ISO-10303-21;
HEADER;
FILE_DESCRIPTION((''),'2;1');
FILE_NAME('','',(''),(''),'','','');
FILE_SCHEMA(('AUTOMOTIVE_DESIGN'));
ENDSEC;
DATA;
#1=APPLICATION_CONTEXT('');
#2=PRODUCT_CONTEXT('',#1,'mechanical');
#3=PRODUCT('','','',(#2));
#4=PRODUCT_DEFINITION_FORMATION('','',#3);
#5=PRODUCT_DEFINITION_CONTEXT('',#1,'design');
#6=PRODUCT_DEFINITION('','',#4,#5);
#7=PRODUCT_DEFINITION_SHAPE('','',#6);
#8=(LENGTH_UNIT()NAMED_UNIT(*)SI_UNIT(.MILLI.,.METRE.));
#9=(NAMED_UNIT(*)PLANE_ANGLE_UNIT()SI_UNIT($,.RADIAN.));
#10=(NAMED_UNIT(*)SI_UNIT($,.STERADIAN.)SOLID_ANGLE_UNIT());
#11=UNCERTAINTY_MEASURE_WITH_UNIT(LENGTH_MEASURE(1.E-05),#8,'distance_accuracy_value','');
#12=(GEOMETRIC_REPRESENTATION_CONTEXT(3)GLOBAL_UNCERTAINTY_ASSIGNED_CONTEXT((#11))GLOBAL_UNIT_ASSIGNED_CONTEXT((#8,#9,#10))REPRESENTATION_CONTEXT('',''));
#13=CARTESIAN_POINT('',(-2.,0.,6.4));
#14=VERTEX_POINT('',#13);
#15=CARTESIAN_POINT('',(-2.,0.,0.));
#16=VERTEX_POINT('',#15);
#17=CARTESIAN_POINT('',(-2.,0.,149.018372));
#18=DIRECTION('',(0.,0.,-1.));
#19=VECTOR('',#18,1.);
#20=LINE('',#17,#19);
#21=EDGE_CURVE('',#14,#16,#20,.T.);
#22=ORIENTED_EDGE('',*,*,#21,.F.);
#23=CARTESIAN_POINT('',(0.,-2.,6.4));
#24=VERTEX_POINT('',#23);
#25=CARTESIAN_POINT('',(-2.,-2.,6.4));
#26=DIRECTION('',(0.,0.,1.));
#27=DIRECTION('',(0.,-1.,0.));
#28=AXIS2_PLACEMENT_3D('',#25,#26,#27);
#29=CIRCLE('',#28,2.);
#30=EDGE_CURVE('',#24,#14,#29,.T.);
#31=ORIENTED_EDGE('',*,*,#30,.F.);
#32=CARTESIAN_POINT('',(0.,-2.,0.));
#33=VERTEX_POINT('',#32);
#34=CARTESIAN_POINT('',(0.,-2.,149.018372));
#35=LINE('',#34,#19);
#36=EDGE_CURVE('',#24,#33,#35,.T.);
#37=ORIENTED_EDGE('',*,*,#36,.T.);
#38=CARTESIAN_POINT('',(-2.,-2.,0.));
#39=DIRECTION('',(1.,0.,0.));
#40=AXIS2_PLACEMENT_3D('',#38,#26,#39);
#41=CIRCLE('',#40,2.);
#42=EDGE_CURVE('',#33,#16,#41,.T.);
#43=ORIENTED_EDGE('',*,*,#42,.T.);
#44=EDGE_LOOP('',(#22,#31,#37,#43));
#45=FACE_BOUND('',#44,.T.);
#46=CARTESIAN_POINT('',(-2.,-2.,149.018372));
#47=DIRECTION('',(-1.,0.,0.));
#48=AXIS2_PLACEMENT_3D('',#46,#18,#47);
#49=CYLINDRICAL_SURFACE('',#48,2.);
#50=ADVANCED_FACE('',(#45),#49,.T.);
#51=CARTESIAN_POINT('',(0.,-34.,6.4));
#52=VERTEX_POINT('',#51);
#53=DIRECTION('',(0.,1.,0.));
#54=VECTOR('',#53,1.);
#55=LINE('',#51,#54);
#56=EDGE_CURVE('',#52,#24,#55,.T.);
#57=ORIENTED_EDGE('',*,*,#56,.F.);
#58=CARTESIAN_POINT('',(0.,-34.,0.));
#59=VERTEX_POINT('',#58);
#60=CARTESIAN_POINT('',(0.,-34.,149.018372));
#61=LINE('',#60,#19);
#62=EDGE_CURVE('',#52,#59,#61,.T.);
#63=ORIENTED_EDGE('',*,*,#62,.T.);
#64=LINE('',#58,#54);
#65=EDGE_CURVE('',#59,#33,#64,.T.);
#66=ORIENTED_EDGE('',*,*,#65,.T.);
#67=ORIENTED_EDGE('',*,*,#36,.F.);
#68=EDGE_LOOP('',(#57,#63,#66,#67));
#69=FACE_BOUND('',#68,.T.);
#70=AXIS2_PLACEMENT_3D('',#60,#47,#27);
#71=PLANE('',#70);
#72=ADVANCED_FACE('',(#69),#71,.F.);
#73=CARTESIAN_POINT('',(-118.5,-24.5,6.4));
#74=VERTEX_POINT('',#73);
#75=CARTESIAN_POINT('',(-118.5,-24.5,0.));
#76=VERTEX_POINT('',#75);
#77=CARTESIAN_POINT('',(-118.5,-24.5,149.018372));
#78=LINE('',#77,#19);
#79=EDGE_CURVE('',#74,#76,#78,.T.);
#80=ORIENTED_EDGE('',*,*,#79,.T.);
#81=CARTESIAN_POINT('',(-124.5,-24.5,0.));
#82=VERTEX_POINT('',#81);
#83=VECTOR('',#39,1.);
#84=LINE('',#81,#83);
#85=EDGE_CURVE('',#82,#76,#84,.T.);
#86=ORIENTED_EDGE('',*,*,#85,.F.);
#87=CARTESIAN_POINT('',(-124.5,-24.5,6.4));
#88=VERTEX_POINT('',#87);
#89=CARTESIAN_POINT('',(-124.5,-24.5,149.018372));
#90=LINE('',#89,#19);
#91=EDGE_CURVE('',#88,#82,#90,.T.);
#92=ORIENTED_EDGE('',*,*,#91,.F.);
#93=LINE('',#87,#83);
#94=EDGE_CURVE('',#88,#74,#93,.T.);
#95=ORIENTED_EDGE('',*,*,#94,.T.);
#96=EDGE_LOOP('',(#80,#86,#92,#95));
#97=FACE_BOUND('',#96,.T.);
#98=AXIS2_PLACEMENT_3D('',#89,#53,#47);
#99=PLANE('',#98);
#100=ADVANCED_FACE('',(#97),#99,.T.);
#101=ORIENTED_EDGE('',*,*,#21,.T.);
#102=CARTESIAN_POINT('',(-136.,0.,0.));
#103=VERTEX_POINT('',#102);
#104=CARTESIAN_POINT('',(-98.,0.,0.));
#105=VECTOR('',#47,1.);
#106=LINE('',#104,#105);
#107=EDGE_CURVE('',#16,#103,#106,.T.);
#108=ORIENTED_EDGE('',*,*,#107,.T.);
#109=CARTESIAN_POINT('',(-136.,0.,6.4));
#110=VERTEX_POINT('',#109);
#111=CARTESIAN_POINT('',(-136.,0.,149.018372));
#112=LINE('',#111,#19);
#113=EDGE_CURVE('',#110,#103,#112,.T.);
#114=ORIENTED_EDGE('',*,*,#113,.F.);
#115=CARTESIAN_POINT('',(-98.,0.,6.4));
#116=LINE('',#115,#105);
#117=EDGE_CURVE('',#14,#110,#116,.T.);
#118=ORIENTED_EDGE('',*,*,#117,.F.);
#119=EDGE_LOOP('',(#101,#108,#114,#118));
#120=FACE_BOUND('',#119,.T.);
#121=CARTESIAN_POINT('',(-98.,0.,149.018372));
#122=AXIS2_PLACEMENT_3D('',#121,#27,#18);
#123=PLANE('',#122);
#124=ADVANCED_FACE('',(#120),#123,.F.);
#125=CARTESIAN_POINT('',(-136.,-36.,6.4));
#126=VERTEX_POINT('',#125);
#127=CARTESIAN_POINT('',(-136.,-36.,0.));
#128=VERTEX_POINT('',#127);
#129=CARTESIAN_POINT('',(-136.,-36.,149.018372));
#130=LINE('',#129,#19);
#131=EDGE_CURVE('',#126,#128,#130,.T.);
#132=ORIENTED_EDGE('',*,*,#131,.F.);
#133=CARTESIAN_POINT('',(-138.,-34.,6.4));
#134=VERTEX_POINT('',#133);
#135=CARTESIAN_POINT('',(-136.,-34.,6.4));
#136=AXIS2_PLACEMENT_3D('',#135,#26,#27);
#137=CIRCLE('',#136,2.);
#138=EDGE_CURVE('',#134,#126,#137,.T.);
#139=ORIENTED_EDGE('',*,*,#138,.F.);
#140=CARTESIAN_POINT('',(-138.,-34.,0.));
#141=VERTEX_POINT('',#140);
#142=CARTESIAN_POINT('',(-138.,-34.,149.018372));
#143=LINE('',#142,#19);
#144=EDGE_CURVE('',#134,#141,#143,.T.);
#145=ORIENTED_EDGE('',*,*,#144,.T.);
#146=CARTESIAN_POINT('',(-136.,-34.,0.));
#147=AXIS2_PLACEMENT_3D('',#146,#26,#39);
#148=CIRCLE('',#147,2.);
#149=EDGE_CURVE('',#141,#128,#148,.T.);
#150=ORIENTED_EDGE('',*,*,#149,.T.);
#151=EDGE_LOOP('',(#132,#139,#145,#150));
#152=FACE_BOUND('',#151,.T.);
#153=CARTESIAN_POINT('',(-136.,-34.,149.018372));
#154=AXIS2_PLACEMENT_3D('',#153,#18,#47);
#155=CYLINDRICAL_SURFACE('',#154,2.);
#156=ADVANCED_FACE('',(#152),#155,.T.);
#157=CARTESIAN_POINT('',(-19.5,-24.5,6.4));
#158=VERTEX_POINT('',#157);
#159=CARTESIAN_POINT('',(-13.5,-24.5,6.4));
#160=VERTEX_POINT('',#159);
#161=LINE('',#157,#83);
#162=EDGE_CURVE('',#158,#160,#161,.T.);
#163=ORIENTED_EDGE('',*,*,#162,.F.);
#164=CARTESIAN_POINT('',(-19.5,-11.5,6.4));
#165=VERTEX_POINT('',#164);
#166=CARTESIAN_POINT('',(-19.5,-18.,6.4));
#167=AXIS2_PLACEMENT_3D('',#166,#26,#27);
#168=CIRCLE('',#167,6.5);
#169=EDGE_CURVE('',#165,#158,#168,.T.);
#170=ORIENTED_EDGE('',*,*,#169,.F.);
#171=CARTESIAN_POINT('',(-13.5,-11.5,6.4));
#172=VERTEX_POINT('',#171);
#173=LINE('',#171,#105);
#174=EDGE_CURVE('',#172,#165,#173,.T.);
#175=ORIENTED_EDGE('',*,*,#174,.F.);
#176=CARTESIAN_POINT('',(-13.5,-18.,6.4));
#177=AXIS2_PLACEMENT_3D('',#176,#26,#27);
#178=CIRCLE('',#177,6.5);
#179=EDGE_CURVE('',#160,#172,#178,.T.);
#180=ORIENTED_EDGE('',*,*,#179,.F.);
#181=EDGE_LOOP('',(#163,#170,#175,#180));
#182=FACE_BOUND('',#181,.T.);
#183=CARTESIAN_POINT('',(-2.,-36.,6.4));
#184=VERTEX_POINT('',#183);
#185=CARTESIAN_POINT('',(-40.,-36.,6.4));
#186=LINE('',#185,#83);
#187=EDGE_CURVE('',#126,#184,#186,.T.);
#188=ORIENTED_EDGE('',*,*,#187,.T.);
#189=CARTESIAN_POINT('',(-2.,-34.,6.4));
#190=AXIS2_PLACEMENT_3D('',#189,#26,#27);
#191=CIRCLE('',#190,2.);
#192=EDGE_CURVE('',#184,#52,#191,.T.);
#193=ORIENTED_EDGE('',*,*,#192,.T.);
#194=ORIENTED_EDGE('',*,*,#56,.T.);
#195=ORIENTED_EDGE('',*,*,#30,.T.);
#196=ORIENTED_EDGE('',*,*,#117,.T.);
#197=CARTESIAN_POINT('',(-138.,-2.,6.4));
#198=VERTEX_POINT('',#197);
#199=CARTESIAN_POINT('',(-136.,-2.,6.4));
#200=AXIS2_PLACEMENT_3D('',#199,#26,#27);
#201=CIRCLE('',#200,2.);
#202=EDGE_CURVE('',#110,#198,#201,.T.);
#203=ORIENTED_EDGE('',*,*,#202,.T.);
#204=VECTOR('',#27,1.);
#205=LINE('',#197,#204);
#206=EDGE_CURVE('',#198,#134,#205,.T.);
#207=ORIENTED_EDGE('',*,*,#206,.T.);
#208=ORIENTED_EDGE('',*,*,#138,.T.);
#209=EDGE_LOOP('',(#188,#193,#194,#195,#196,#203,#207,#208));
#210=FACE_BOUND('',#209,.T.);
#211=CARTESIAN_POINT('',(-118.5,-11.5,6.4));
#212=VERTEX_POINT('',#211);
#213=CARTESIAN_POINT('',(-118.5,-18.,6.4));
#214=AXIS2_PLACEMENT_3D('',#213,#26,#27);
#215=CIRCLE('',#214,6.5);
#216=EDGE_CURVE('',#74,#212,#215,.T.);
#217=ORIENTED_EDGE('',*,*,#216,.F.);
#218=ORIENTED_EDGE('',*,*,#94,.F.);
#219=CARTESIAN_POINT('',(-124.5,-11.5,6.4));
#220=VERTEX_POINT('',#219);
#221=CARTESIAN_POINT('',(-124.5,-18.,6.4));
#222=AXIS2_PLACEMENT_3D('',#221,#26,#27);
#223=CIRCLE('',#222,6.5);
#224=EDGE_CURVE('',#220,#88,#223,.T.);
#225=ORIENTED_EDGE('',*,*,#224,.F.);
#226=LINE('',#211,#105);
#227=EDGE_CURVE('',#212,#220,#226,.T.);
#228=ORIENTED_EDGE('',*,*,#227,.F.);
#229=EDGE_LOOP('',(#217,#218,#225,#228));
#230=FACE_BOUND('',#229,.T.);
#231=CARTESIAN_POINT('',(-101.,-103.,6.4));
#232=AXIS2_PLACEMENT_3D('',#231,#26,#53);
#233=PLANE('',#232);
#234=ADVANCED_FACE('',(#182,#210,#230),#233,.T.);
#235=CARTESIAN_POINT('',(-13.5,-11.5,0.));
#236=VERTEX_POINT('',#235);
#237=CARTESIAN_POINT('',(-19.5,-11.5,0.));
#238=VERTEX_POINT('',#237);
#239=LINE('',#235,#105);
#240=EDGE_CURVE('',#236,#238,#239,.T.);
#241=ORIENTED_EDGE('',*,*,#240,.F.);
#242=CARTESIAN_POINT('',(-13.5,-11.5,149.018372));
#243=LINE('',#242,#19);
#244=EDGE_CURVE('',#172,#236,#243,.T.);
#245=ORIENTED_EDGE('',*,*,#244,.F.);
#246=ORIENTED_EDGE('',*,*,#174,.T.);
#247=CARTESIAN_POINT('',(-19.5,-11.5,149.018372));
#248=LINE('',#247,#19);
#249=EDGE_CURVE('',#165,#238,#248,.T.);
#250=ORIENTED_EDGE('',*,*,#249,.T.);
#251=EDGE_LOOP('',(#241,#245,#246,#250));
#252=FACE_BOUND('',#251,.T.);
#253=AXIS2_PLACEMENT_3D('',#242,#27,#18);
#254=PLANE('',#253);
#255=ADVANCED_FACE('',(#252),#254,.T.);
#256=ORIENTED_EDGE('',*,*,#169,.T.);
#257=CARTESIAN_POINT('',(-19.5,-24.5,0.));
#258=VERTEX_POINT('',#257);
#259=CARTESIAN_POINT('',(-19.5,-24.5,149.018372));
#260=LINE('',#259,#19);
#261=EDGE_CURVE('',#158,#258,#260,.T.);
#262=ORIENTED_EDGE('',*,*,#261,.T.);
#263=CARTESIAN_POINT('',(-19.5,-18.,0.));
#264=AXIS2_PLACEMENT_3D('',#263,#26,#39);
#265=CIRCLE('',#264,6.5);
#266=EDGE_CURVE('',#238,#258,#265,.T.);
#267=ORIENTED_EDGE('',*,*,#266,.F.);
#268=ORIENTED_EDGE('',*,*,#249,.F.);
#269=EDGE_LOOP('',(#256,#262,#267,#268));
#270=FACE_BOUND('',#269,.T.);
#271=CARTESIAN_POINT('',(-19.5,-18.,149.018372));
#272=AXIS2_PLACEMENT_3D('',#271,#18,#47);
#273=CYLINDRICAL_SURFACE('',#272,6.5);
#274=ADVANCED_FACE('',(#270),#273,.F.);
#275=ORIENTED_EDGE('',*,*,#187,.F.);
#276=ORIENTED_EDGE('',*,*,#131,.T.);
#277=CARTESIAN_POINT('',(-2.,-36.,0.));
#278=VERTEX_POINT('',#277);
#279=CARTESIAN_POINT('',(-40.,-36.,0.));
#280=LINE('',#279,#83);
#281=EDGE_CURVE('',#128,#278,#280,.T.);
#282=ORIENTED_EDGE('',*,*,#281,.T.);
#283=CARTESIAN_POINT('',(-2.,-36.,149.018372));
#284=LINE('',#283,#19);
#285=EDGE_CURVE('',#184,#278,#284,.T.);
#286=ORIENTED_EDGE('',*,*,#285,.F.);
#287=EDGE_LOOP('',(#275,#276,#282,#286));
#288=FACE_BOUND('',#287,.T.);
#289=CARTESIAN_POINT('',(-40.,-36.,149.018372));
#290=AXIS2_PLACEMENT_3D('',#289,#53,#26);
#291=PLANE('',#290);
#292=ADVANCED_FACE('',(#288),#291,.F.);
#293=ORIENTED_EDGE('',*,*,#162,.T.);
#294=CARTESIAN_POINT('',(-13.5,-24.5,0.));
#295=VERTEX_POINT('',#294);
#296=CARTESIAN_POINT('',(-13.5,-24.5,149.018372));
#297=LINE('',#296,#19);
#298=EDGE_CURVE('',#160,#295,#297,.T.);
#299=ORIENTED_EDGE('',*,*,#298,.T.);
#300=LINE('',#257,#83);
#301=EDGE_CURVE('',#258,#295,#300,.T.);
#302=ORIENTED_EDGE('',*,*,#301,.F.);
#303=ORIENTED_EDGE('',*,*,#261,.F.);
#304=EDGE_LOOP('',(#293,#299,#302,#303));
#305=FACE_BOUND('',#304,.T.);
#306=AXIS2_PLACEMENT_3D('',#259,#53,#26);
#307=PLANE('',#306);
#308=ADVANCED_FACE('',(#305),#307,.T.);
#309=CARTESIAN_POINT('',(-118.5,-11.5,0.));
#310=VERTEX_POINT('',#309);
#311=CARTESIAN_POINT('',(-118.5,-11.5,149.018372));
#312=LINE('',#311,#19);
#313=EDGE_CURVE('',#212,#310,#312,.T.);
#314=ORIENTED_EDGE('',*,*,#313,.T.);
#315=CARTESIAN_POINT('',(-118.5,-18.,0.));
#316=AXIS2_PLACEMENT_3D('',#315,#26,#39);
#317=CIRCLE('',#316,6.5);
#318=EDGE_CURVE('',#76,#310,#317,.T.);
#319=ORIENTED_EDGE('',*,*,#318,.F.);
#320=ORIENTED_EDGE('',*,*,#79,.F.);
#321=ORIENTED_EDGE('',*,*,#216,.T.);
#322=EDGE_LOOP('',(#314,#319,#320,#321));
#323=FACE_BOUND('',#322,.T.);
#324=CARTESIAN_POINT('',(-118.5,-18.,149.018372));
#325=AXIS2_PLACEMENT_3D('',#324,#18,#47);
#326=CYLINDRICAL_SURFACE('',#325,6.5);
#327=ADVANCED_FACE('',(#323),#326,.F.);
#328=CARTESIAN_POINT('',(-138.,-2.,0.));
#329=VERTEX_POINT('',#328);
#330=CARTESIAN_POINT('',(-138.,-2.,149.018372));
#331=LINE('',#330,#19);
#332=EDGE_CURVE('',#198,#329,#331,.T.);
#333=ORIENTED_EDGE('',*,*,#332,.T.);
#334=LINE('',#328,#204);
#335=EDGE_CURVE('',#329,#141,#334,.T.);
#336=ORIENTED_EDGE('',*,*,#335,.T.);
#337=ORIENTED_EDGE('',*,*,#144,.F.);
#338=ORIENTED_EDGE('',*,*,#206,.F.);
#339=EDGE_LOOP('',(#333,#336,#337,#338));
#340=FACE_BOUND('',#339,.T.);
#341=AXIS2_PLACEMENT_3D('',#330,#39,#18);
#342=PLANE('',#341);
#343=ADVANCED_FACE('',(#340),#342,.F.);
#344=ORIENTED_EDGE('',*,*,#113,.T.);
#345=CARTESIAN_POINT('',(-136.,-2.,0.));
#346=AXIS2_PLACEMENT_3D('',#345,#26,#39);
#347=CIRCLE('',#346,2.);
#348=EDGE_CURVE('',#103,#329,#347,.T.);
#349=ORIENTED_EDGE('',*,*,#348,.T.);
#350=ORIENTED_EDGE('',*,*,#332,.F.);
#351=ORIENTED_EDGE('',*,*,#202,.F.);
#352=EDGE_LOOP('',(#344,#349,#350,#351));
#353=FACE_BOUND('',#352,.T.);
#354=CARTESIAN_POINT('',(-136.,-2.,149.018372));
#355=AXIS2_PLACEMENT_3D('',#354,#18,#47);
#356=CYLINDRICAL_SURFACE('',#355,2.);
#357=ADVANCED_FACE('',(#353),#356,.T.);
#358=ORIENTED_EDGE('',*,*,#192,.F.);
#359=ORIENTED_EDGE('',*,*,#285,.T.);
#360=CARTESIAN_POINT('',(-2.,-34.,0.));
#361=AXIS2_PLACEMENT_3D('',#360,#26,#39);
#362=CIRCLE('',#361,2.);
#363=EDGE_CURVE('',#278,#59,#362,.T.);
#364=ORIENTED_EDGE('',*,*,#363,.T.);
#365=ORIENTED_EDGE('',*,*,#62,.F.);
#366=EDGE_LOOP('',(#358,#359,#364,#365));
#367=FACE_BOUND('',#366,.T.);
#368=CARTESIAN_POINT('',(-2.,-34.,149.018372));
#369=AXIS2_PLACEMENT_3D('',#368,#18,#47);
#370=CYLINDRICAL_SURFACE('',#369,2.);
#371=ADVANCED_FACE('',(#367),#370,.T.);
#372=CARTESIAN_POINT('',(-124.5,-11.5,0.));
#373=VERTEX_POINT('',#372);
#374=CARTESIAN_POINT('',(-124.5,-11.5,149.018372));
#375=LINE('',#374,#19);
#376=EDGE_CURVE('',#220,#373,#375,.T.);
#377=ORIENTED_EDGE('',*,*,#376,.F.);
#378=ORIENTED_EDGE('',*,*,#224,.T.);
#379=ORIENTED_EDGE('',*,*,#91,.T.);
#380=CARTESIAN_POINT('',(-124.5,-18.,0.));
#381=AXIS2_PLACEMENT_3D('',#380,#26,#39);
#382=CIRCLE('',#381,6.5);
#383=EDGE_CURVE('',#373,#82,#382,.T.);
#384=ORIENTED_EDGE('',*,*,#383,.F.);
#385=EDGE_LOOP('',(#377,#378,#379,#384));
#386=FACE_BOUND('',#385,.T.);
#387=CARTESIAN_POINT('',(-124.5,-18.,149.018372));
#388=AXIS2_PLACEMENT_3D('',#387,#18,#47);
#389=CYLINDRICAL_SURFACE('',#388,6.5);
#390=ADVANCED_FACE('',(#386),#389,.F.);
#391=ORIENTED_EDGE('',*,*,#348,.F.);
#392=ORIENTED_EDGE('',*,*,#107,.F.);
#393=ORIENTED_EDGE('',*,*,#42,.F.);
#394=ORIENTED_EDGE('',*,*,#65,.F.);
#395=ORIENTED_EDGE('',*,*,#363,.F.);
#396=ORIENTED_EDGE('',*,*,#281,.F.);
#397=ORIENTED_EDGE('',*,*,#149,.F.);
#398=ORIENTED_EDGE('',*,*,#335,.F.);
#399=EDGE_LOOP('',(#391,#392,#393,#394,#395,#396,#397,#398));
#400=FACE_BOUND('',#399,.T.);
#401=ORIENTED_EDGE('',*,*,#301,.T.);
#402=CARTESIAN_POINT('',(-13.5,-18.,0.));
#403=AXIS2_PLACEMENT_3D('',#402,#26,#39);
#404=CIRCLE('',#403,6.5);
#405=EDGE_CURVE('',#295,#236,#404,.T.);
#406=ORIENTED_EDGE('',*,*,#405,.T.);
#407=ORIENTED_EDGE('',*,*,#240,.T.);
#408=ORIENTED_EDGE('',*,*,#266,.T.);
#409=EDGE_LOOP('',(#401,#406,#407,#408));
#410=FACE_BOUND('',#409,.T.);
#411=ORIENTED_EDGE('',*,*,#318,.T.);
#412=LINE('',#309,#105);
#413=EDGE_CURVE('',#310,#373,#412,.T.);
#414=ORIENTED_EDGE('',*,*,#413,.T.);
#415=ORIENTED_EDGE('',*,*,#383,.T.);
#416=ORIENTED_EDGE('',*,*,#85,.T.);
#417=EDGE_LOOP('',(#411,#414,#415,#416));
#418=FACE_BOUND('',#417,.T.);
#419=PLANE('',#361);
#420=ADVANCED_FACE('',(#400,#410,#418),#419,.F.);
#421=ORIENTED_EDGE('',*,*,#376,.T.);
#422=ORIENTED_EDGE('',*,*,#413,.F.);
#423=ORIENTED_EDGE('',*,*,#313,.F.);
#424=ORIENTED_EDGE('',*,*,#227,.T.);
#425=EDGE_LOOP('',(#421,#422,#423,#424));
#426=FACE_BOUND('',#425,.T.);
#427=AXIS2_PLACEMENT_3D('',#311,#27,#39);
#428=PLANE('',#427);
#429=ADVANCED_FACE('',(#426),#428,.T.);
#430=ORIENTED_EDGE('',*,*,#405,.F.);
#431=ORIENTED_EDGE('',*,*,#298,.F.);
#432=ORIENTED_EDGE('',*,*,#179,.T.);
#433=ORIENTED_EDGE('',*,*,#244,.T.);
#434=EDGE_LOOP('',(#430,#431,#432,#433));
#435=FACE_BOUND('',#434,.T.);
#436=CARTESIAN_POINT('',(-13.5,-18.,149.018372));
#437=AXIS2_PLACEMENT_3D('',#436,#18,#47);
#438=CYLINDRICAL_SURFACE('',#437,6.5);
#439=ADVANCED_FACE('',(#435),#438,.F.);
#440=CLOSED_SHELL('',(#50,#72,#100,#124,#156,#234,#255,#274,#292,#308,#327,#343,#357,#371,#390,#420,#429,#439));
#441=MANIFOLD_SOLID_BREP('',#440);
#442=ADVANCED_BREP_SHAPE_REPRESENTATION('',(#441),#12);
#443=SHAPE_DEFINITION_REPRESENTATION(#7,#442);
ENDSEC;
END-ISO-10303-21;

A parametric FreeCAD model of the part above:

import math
import FreeCAD as App
import Part
import Sketcher
from FreeCAD import Vector

doc = App.newDocument("Part")
params = doc.addObject("Spreadsheet::Sheet", "Params")
for row, (alias, value) in enumerate([
    ("sketch1_radius", "2 mm"),
    ("sketch1_radius2", "6.5 mm"),
    ("sketch1_width", "134 mm"),
    ("sketch1_width2", "6 mm"),
    ("sketch1_height", "32 mm"),
    ("pad1_length", "6.4 mm"),
], start=1):
    params.set(f"A{row}", alias)
    params.set(f"B{row}", "=" + value)
    params.setAlias(f"B{row}", alias)

body = doc.addObject("PartDesign::Body", "Body")

# Sketch on XY plane
sketch1 = doc.addObject("Sketcher::SketchObject", "Sketch")
body.addObject(sketch1)
sketch1.AttachmentSupport = (doc.XY_Plane, [""])
sketch1.MapMode = "FlatFace"
sketch1.addGeometry(Part.LineSegment(Vector(0, -34, 0), Vector(0, -2, 0)), False)
sketch1.addGeometry(Part.ArcOfCircle(Part.Circle(Vector(-2, -2, 0), Vector(0, 0, 1), 2), math.radians(0), math.radians(90)), False)
sketch1.addGeometry(Part.LineSegment(Vector(-2, 0, 0), Vector(-136, 0, 0)), False)
sketch1.addGeometry(Part.ArcOfCircle(Part.Circle(Vector(-136, -2, 0), Vector(0, 0, 1), 2), math.radians(90), math.radians(180)), False)
sketch1.addGeometry(Part.LineSegment(Vector(-138, -2, 0), Vector(-138, -34, 0)), False)
sketch1.addGeometry(Part.ArcOfCircle(Part.Circle(Vector(-136, -34, 0), Vector(0, 0, 1), 2), math.radians(-180), math.radians(-90)), False)
sketch1.addGeometry(Part.LineSegment(Vector(-136, -36, 0), Vector(-2, -36, 0)), False)
sketch1.addGeometry(Part.ArcOfCircle(Part.Circle(Vector(-2, -34, 0), Vector(0, 0, 1), 2), math.radians(-90), math.radians(0)), False)
sketch1.addGeometry(Part.LineSegment(Vector(-118.5, -24.5, 0), Vector(-124.5, -24.5, 0)), False)
sketch1.addGeometry(Part.ArcOfCircle(Part.Circle(Vector(-124.5, -18, 0), Vector(0, 0, 1), 6.5), math.radians(90), math.radians(270)), False)
sketch1.addGeometry(Part.LineSegment(Vector(-124.5, -11.5, 0), Vector(-118.5, -11.5, 0)), False)
sketch1.addGeometry(Part.ArcOfCircle(Part.Circle(Vector(-118.5, -18, 0), Vector(0, 0, 1), 6.5), math.radians(-90), math.radians(90)), False)
sketch1.addGeometry(Part.LineSegment(Vector(-13.5, -24.5, 0), Vector(-19.5, -24.5, 0)), False)
sketch1.addGeometry(Part.ArcOfCircle(Part.Circle(Vector(-19.5, -18, 0), Vector(0, 0, 1), 6.5), math.radians(90), math.radians(270)), False)
sketch1.addGeometry(Part.LineSegment(Vector(-19.5, -11.5, 0), Vector(-13.5, -11.5, 0)), False)
sketch1.addGeometry(Part.ArcOfCircle(Part.Circle(Vector(-13.5, -18, 0), Vector(0, 0, 1), 6.5), math.radians(-90), math.radians(90)), False)
sketch1.addConstraint(Sketcher.Constraint("Tangent", 0, 2, 1, 1))
sketch1.addConstraint(Sketcher.Constraint("Tangent", 1, 2, 2, 1))
sketch1.addConstraint(Sketcher.Constraint("Tangent", 2, 2, 3, 1))
sketch1.addConstraint(Sketcher.Constraint("Tangent", 3, 2, 4, 1))
sketch1.addConstraint(Sketcher.Constraint("Tangent", 4, 2, 5, 1))
sketch1.addConstraint(Sketcher.Constraint("Tangent", 5, 2, 6, 1))
sketch1.addConstraint(Sketcher.Constraint("Tangent", 6, 2, 7, 1))
sketch1.addConstraint(Sketcher.Constraint("Tangent", 7, 2, 0, 1))
sketch1.addConstraint(Sketcher.Constraint("Tangent", 8, 2, 9, 2))
sketch1.addConstraint(Sketcher.Constraint("Tangent", 9, 1, 10, 1))
sketch1.addConstraint(Sketcher.Constraint("Tangent", 10, 2, 11, 2))
sketch1.addConstraint(Sketcher.Constraint("Tangent", 11, 1, 8, 1))
sketch1.addConstraint(Sketcher.Constraint("Tangent", 12, 2, 13, 2))
sketch1.addConstraint(Sketcher.Constraint("Tangent", 13, 1, 14, 1))
sketch1.addConstraint(Sketcher.Constraint("Tangent", 14, 2, 15, 2))
sketch1.addConstraint(Sketcher.Constraint("Tangent", 15, 1, 12, 1))
sketch1.addConstraint(Sketcher.Constraint("Vertical", 0))
sketch1.addConstraint(Sketcher.Constraint("Horizontal", 2))
sketch1.addConstraint(Sketcher.Constraint("Vertical", 4))
sketch1.addConstraint(Sketcher.Constraint("Horizontal", 6))
sketch1.addConstraint(Sketcher.Constraint("Horizontal", 8))
sketch1.addConstraint(Sketcher.Constraint("Horizontal", 10))
sketch1.addConstraint(Sketcher.Constraint("Horizontal", 12))
sketch1.addConstraint(Sketcher.Constraint("Horizontal", 14))
sketch1.addConstraint(Sketcher.Constraint("Equal", 1, 3))
sketch1.addConstraint(Sketcher.Constraint("Equal", 3, 5))
sketch1.addConstraint(Sketcher.Constraint("Equal", 5, 7))
sketch1.addConstraint(Sketcher.Constraint("Equal", 11, 13))
sketch1.addConstraint(Sketcher.Constraint("PointOnObject", 0, 2, -2))
sketch1.addConstraint(Sketcher.Constraint("PointOnObject", 1, 2, -1))
sketch1.addConstraint(Sketcher.Constraint("Horizontal", 11, 3, 13, 3))
sketch1.addConstraint(Sketcher.Constraint("Equal", 10, 12))
sketch1.addConstraint(Sketcher.Constraint("Radius", 1, 2.0))
sketch1.addConstraint(Sketcher.Constraint("Radius", 9, 6.5))
sketch1.addConstraint(Sketcher.Constraint("DistanceX", 2, 2, 2, 1, 134.0))
sketch1.addConstraint(Sketcher.Constraint("DistanceX", 8, 2, 8, 1, 6.0))
sketch1.addConstraint(Sketcher.Constraint("DistanceY", 0, 1, 0, 2, 32.0))
sketch1.addConstraint(Sketcher.Constraint("DistanceY", 9, 3, -1, 1, 18.0))
sketch1.addConstraint(Sketcher.Constraint("DistanceX", 11, 3, 13, 3, 99.0))
sketch1.addConstraint(Sketcher.Constraint("DistanceX", 9, 3, -1, 1, 124.5))
sketch1.setExpression("Constraints[32]", "Params.sketch1_radius")
sketch1.setExpression("Constraints[33]", "Params.sketch1_radius2")
sketch1.setExpression("Constraints[34]", "Params.sketch1_width")
sketch1.setExpression("Constraints[35]", "Params.sketch1_width2")
sketch1.setExpression("Constraints[36]", "Params.sketch1_height")
pad1 = doc.addObject("PartDesign::Pad", "Pad")
body.addObject(pad1)
pad1.Profile = sketch1
pad1.setExpression("Length", "Params.pad1_length")

doc.recompute()
